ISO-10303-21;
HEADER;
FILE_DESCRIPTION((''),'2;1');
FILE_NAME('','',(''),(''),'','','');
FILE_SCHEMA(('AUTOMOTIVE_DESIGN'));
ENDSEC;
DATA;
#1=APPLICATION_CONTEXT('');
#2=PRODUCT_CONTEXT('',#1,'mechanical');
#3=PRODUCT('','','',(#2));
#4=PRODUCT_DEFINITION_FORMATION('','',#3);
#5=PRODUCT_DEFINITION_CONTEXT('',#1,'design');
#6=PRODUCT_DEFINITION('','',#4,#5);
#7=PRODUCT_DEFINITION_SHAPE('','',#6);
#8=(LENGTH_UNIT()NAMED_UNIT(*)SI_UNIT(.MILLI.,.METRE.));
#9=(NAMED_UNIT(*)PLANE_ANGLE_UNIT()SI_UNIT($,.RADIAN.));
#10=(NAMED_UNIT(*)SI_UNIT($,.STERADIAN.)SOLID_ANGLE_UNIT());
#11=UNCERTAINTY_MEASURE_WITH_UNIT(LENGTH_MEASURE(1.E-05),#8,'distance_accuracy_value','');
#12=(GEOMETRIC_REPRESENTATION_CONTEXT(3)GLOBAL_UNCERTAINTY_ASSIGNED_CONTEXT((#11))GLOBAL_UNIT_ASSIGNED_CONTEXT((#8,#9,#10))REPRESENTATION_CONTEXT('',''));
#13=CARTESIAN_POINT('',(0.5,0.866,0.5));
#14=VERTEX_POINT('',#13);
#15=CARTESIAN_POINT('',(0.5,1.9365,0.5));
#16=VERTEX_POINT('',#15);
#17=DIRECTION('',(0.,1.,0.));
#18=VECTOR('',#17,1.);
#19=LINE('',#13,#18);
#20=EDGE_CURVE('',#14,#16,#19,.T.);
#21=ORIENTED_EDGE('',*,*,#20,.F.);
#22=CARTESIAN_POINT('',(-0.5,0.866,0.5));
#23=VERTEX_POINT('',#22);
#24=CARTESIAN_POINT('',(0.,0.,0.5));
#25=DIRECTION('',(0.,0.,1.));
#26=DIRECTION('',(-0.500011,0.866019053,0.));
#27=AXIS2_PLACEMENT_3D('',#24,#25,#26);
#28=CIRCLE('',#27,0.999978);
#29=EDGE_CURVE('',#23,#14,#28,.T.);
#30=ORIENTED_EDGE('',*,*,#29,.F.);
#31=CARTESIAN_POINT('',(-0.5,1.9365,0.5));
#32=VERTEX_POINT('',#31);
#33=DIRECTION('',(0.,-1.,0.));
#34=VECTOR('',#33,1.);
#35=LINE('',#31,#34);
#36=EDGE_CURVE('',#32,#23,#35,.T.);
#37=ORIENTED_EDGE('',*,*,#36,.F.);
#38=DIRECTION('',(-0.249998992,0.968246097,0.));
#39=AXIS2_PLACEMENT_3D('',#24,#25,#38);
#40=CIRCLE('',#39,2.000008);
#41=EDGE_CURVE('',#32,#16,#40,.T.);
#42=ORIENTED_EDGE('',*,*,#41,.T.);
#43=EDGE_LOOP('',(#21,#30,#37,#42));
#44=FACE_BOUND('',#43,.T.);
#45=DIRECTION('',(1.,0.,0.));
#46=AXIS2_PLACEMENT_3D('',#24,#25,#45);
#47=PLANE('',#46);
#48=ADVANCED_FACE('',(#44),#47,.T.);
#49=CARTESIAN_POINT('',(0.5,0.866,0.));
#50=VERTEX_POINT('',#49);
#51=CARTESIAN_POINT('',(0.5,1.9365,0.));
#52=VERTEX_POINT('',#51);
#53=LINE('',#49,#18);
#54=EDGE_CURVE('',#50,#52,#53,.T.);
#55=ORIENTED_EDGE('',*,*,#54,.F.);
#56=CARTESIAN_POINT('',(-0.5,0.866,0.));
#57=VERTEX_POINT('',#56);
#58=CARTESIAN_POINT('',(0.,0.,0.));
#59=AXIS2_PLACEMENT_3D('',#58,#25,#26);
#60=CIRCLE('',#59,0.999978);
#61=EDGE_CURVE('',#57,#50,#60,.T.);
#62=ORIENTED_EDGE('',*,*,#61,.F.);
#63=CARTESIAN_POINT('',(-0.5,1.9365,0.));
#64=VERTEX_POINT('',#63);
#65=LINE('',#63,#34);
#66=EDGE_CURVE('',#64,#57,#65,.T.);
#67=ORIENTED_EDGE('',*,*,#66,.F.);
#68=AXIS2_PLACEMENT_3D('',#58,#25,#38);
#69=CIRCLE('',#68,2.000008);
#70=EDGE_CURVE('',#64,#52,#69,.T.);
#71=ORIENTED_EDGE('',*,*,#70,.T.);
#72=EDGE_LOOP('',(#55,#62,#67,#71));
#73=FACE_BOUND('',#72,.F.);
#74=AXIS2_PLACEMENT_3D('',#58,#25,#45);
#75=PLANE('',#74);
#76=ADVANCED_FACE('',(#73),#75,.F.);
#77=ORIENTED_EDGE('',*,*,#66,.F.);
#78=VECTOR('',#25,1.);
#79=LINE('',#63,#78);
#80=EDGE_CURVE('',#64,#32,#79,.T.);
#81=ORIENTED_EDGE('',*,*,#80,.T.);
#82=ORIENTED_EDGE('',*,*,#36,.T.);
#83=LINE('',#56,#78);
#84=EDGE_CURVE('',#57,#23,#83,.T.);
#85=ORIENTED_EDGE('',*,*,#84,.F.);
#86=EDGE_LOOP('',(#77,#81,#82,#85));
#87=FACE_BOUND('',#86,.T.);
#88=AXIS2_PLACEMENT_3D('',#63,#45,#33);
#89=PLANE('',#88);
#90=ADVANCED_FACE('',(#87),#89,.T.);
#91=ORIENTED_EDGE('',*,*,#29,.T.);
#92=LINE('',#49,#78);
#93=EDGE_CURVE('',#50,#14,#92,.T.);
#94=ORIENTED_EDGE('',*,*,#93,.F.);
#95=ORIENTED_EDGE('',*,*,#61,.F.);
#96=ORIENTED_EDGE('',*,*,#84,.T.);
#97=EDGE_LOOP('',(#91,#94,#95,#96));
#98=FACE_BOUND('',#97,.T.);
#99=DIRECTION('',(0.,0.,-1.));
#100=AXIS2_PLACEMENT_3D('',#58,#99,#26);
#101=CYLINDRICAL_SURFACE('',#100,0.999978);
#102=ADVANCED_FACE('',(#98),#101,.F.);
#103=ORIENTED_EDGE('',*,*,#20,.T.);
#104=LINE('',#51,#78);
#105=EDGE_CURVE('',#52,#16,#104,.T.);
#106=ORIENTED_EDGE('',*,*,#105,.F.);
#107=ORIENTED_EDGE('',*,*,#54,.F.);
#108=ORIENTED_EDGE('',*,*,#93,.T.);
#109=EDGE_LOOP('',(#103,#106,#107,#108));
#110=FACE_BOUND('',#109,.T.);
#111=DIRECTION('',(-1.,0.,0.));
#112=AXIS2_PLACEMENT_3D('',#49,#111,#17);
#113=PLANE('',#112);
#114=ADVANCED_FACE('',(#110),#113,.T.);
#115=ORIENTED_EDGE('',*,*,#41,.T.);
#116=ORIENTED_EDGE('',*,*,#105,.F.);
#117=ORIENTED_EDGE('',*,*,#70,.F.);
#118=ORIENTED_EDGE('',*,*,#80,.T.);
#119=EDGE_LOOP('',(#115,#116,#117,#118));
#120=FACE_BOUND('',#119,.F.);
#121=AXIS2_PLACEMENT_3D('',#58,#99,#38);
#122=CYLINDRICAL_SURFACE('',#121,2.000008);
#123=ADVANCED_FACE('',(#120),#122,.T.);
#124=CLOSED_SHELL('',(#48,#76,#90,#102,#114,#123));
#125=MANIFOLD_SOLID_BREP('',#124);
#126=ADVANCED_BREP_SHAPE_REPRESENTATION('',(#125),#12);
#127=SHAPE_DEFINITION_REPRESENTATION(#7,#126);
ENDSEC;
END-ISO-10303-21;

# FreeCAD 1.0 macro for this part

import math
import FreeCAD as App
import Part
import Sketcher
from FreeCAD import Vector

doc = App.newDocument("Part")
body = doc.addObject("PartDesign::Body", "Body")

# Sketch on XY plane
sketch1 = body.newObject("Sketcher::SketchObject", "Sketch")
sketch1.AttachmentSupport = (doc.getObject("XY_Plane"), [""])
sketch1.MapMode = "FlatFace"
sketch1.addGeometry([
    Part.LineSegment(Vector(-0.5, 0.9, 0), Vector(-0.5, 1.9, 0)),
    Part.ArcOfCircle(Part.Circle(Vector(0, 0, 0), Vector(0, 0, 1), 2), math.radians(104), math.radians(436)),
    Part.LineSegment(Vector(0.5, 1.9, 0), Vector(0.5, 0.9, 0)),
    Part.ArcOfCircle(Part.Circle(Vector(0, 0, 0), Vector(0, 0, 1), 1), math.radians(120), math.radians(420)),
], False)
sketch1.addConstraint([
    Sketcher.Constraint("Coincident", 0, 2, 1, 1),
    Sketcher.Constraint("Coincident", 1, 2, 2, 1),
    Sketcher.Constraint("Coincident", 2, 2, 3, 2),
    Sketcher.Constraint("Coincident", 3, 1, 0, 1),
    Sketcher.Constraint("Vertical", 0),
    Sketcher.Constraint("Vertical", 2),
    Sketcher.Constraint("Coincident", 1, 3, -1, 1),
    Sketcher.Constraint("Coincident", 3, 3, -1, 1),
    Sketcher.Constraint("Horizontal", 0, 2, 1, 2),
    Sketcher.Constraint("Radius", 1, 2.0),
    Sketcher.Constraint("Radius", 3, 1.0),
    Sketcher.Constraint("DistanceX", 0, 2, 1, 2, 1.0),
])
pad1 = body.newObject("PartDesign::Pad", "Pad")
pad1.Profile = sketch1
pad1.Length = 0.5

doc.recompute()
